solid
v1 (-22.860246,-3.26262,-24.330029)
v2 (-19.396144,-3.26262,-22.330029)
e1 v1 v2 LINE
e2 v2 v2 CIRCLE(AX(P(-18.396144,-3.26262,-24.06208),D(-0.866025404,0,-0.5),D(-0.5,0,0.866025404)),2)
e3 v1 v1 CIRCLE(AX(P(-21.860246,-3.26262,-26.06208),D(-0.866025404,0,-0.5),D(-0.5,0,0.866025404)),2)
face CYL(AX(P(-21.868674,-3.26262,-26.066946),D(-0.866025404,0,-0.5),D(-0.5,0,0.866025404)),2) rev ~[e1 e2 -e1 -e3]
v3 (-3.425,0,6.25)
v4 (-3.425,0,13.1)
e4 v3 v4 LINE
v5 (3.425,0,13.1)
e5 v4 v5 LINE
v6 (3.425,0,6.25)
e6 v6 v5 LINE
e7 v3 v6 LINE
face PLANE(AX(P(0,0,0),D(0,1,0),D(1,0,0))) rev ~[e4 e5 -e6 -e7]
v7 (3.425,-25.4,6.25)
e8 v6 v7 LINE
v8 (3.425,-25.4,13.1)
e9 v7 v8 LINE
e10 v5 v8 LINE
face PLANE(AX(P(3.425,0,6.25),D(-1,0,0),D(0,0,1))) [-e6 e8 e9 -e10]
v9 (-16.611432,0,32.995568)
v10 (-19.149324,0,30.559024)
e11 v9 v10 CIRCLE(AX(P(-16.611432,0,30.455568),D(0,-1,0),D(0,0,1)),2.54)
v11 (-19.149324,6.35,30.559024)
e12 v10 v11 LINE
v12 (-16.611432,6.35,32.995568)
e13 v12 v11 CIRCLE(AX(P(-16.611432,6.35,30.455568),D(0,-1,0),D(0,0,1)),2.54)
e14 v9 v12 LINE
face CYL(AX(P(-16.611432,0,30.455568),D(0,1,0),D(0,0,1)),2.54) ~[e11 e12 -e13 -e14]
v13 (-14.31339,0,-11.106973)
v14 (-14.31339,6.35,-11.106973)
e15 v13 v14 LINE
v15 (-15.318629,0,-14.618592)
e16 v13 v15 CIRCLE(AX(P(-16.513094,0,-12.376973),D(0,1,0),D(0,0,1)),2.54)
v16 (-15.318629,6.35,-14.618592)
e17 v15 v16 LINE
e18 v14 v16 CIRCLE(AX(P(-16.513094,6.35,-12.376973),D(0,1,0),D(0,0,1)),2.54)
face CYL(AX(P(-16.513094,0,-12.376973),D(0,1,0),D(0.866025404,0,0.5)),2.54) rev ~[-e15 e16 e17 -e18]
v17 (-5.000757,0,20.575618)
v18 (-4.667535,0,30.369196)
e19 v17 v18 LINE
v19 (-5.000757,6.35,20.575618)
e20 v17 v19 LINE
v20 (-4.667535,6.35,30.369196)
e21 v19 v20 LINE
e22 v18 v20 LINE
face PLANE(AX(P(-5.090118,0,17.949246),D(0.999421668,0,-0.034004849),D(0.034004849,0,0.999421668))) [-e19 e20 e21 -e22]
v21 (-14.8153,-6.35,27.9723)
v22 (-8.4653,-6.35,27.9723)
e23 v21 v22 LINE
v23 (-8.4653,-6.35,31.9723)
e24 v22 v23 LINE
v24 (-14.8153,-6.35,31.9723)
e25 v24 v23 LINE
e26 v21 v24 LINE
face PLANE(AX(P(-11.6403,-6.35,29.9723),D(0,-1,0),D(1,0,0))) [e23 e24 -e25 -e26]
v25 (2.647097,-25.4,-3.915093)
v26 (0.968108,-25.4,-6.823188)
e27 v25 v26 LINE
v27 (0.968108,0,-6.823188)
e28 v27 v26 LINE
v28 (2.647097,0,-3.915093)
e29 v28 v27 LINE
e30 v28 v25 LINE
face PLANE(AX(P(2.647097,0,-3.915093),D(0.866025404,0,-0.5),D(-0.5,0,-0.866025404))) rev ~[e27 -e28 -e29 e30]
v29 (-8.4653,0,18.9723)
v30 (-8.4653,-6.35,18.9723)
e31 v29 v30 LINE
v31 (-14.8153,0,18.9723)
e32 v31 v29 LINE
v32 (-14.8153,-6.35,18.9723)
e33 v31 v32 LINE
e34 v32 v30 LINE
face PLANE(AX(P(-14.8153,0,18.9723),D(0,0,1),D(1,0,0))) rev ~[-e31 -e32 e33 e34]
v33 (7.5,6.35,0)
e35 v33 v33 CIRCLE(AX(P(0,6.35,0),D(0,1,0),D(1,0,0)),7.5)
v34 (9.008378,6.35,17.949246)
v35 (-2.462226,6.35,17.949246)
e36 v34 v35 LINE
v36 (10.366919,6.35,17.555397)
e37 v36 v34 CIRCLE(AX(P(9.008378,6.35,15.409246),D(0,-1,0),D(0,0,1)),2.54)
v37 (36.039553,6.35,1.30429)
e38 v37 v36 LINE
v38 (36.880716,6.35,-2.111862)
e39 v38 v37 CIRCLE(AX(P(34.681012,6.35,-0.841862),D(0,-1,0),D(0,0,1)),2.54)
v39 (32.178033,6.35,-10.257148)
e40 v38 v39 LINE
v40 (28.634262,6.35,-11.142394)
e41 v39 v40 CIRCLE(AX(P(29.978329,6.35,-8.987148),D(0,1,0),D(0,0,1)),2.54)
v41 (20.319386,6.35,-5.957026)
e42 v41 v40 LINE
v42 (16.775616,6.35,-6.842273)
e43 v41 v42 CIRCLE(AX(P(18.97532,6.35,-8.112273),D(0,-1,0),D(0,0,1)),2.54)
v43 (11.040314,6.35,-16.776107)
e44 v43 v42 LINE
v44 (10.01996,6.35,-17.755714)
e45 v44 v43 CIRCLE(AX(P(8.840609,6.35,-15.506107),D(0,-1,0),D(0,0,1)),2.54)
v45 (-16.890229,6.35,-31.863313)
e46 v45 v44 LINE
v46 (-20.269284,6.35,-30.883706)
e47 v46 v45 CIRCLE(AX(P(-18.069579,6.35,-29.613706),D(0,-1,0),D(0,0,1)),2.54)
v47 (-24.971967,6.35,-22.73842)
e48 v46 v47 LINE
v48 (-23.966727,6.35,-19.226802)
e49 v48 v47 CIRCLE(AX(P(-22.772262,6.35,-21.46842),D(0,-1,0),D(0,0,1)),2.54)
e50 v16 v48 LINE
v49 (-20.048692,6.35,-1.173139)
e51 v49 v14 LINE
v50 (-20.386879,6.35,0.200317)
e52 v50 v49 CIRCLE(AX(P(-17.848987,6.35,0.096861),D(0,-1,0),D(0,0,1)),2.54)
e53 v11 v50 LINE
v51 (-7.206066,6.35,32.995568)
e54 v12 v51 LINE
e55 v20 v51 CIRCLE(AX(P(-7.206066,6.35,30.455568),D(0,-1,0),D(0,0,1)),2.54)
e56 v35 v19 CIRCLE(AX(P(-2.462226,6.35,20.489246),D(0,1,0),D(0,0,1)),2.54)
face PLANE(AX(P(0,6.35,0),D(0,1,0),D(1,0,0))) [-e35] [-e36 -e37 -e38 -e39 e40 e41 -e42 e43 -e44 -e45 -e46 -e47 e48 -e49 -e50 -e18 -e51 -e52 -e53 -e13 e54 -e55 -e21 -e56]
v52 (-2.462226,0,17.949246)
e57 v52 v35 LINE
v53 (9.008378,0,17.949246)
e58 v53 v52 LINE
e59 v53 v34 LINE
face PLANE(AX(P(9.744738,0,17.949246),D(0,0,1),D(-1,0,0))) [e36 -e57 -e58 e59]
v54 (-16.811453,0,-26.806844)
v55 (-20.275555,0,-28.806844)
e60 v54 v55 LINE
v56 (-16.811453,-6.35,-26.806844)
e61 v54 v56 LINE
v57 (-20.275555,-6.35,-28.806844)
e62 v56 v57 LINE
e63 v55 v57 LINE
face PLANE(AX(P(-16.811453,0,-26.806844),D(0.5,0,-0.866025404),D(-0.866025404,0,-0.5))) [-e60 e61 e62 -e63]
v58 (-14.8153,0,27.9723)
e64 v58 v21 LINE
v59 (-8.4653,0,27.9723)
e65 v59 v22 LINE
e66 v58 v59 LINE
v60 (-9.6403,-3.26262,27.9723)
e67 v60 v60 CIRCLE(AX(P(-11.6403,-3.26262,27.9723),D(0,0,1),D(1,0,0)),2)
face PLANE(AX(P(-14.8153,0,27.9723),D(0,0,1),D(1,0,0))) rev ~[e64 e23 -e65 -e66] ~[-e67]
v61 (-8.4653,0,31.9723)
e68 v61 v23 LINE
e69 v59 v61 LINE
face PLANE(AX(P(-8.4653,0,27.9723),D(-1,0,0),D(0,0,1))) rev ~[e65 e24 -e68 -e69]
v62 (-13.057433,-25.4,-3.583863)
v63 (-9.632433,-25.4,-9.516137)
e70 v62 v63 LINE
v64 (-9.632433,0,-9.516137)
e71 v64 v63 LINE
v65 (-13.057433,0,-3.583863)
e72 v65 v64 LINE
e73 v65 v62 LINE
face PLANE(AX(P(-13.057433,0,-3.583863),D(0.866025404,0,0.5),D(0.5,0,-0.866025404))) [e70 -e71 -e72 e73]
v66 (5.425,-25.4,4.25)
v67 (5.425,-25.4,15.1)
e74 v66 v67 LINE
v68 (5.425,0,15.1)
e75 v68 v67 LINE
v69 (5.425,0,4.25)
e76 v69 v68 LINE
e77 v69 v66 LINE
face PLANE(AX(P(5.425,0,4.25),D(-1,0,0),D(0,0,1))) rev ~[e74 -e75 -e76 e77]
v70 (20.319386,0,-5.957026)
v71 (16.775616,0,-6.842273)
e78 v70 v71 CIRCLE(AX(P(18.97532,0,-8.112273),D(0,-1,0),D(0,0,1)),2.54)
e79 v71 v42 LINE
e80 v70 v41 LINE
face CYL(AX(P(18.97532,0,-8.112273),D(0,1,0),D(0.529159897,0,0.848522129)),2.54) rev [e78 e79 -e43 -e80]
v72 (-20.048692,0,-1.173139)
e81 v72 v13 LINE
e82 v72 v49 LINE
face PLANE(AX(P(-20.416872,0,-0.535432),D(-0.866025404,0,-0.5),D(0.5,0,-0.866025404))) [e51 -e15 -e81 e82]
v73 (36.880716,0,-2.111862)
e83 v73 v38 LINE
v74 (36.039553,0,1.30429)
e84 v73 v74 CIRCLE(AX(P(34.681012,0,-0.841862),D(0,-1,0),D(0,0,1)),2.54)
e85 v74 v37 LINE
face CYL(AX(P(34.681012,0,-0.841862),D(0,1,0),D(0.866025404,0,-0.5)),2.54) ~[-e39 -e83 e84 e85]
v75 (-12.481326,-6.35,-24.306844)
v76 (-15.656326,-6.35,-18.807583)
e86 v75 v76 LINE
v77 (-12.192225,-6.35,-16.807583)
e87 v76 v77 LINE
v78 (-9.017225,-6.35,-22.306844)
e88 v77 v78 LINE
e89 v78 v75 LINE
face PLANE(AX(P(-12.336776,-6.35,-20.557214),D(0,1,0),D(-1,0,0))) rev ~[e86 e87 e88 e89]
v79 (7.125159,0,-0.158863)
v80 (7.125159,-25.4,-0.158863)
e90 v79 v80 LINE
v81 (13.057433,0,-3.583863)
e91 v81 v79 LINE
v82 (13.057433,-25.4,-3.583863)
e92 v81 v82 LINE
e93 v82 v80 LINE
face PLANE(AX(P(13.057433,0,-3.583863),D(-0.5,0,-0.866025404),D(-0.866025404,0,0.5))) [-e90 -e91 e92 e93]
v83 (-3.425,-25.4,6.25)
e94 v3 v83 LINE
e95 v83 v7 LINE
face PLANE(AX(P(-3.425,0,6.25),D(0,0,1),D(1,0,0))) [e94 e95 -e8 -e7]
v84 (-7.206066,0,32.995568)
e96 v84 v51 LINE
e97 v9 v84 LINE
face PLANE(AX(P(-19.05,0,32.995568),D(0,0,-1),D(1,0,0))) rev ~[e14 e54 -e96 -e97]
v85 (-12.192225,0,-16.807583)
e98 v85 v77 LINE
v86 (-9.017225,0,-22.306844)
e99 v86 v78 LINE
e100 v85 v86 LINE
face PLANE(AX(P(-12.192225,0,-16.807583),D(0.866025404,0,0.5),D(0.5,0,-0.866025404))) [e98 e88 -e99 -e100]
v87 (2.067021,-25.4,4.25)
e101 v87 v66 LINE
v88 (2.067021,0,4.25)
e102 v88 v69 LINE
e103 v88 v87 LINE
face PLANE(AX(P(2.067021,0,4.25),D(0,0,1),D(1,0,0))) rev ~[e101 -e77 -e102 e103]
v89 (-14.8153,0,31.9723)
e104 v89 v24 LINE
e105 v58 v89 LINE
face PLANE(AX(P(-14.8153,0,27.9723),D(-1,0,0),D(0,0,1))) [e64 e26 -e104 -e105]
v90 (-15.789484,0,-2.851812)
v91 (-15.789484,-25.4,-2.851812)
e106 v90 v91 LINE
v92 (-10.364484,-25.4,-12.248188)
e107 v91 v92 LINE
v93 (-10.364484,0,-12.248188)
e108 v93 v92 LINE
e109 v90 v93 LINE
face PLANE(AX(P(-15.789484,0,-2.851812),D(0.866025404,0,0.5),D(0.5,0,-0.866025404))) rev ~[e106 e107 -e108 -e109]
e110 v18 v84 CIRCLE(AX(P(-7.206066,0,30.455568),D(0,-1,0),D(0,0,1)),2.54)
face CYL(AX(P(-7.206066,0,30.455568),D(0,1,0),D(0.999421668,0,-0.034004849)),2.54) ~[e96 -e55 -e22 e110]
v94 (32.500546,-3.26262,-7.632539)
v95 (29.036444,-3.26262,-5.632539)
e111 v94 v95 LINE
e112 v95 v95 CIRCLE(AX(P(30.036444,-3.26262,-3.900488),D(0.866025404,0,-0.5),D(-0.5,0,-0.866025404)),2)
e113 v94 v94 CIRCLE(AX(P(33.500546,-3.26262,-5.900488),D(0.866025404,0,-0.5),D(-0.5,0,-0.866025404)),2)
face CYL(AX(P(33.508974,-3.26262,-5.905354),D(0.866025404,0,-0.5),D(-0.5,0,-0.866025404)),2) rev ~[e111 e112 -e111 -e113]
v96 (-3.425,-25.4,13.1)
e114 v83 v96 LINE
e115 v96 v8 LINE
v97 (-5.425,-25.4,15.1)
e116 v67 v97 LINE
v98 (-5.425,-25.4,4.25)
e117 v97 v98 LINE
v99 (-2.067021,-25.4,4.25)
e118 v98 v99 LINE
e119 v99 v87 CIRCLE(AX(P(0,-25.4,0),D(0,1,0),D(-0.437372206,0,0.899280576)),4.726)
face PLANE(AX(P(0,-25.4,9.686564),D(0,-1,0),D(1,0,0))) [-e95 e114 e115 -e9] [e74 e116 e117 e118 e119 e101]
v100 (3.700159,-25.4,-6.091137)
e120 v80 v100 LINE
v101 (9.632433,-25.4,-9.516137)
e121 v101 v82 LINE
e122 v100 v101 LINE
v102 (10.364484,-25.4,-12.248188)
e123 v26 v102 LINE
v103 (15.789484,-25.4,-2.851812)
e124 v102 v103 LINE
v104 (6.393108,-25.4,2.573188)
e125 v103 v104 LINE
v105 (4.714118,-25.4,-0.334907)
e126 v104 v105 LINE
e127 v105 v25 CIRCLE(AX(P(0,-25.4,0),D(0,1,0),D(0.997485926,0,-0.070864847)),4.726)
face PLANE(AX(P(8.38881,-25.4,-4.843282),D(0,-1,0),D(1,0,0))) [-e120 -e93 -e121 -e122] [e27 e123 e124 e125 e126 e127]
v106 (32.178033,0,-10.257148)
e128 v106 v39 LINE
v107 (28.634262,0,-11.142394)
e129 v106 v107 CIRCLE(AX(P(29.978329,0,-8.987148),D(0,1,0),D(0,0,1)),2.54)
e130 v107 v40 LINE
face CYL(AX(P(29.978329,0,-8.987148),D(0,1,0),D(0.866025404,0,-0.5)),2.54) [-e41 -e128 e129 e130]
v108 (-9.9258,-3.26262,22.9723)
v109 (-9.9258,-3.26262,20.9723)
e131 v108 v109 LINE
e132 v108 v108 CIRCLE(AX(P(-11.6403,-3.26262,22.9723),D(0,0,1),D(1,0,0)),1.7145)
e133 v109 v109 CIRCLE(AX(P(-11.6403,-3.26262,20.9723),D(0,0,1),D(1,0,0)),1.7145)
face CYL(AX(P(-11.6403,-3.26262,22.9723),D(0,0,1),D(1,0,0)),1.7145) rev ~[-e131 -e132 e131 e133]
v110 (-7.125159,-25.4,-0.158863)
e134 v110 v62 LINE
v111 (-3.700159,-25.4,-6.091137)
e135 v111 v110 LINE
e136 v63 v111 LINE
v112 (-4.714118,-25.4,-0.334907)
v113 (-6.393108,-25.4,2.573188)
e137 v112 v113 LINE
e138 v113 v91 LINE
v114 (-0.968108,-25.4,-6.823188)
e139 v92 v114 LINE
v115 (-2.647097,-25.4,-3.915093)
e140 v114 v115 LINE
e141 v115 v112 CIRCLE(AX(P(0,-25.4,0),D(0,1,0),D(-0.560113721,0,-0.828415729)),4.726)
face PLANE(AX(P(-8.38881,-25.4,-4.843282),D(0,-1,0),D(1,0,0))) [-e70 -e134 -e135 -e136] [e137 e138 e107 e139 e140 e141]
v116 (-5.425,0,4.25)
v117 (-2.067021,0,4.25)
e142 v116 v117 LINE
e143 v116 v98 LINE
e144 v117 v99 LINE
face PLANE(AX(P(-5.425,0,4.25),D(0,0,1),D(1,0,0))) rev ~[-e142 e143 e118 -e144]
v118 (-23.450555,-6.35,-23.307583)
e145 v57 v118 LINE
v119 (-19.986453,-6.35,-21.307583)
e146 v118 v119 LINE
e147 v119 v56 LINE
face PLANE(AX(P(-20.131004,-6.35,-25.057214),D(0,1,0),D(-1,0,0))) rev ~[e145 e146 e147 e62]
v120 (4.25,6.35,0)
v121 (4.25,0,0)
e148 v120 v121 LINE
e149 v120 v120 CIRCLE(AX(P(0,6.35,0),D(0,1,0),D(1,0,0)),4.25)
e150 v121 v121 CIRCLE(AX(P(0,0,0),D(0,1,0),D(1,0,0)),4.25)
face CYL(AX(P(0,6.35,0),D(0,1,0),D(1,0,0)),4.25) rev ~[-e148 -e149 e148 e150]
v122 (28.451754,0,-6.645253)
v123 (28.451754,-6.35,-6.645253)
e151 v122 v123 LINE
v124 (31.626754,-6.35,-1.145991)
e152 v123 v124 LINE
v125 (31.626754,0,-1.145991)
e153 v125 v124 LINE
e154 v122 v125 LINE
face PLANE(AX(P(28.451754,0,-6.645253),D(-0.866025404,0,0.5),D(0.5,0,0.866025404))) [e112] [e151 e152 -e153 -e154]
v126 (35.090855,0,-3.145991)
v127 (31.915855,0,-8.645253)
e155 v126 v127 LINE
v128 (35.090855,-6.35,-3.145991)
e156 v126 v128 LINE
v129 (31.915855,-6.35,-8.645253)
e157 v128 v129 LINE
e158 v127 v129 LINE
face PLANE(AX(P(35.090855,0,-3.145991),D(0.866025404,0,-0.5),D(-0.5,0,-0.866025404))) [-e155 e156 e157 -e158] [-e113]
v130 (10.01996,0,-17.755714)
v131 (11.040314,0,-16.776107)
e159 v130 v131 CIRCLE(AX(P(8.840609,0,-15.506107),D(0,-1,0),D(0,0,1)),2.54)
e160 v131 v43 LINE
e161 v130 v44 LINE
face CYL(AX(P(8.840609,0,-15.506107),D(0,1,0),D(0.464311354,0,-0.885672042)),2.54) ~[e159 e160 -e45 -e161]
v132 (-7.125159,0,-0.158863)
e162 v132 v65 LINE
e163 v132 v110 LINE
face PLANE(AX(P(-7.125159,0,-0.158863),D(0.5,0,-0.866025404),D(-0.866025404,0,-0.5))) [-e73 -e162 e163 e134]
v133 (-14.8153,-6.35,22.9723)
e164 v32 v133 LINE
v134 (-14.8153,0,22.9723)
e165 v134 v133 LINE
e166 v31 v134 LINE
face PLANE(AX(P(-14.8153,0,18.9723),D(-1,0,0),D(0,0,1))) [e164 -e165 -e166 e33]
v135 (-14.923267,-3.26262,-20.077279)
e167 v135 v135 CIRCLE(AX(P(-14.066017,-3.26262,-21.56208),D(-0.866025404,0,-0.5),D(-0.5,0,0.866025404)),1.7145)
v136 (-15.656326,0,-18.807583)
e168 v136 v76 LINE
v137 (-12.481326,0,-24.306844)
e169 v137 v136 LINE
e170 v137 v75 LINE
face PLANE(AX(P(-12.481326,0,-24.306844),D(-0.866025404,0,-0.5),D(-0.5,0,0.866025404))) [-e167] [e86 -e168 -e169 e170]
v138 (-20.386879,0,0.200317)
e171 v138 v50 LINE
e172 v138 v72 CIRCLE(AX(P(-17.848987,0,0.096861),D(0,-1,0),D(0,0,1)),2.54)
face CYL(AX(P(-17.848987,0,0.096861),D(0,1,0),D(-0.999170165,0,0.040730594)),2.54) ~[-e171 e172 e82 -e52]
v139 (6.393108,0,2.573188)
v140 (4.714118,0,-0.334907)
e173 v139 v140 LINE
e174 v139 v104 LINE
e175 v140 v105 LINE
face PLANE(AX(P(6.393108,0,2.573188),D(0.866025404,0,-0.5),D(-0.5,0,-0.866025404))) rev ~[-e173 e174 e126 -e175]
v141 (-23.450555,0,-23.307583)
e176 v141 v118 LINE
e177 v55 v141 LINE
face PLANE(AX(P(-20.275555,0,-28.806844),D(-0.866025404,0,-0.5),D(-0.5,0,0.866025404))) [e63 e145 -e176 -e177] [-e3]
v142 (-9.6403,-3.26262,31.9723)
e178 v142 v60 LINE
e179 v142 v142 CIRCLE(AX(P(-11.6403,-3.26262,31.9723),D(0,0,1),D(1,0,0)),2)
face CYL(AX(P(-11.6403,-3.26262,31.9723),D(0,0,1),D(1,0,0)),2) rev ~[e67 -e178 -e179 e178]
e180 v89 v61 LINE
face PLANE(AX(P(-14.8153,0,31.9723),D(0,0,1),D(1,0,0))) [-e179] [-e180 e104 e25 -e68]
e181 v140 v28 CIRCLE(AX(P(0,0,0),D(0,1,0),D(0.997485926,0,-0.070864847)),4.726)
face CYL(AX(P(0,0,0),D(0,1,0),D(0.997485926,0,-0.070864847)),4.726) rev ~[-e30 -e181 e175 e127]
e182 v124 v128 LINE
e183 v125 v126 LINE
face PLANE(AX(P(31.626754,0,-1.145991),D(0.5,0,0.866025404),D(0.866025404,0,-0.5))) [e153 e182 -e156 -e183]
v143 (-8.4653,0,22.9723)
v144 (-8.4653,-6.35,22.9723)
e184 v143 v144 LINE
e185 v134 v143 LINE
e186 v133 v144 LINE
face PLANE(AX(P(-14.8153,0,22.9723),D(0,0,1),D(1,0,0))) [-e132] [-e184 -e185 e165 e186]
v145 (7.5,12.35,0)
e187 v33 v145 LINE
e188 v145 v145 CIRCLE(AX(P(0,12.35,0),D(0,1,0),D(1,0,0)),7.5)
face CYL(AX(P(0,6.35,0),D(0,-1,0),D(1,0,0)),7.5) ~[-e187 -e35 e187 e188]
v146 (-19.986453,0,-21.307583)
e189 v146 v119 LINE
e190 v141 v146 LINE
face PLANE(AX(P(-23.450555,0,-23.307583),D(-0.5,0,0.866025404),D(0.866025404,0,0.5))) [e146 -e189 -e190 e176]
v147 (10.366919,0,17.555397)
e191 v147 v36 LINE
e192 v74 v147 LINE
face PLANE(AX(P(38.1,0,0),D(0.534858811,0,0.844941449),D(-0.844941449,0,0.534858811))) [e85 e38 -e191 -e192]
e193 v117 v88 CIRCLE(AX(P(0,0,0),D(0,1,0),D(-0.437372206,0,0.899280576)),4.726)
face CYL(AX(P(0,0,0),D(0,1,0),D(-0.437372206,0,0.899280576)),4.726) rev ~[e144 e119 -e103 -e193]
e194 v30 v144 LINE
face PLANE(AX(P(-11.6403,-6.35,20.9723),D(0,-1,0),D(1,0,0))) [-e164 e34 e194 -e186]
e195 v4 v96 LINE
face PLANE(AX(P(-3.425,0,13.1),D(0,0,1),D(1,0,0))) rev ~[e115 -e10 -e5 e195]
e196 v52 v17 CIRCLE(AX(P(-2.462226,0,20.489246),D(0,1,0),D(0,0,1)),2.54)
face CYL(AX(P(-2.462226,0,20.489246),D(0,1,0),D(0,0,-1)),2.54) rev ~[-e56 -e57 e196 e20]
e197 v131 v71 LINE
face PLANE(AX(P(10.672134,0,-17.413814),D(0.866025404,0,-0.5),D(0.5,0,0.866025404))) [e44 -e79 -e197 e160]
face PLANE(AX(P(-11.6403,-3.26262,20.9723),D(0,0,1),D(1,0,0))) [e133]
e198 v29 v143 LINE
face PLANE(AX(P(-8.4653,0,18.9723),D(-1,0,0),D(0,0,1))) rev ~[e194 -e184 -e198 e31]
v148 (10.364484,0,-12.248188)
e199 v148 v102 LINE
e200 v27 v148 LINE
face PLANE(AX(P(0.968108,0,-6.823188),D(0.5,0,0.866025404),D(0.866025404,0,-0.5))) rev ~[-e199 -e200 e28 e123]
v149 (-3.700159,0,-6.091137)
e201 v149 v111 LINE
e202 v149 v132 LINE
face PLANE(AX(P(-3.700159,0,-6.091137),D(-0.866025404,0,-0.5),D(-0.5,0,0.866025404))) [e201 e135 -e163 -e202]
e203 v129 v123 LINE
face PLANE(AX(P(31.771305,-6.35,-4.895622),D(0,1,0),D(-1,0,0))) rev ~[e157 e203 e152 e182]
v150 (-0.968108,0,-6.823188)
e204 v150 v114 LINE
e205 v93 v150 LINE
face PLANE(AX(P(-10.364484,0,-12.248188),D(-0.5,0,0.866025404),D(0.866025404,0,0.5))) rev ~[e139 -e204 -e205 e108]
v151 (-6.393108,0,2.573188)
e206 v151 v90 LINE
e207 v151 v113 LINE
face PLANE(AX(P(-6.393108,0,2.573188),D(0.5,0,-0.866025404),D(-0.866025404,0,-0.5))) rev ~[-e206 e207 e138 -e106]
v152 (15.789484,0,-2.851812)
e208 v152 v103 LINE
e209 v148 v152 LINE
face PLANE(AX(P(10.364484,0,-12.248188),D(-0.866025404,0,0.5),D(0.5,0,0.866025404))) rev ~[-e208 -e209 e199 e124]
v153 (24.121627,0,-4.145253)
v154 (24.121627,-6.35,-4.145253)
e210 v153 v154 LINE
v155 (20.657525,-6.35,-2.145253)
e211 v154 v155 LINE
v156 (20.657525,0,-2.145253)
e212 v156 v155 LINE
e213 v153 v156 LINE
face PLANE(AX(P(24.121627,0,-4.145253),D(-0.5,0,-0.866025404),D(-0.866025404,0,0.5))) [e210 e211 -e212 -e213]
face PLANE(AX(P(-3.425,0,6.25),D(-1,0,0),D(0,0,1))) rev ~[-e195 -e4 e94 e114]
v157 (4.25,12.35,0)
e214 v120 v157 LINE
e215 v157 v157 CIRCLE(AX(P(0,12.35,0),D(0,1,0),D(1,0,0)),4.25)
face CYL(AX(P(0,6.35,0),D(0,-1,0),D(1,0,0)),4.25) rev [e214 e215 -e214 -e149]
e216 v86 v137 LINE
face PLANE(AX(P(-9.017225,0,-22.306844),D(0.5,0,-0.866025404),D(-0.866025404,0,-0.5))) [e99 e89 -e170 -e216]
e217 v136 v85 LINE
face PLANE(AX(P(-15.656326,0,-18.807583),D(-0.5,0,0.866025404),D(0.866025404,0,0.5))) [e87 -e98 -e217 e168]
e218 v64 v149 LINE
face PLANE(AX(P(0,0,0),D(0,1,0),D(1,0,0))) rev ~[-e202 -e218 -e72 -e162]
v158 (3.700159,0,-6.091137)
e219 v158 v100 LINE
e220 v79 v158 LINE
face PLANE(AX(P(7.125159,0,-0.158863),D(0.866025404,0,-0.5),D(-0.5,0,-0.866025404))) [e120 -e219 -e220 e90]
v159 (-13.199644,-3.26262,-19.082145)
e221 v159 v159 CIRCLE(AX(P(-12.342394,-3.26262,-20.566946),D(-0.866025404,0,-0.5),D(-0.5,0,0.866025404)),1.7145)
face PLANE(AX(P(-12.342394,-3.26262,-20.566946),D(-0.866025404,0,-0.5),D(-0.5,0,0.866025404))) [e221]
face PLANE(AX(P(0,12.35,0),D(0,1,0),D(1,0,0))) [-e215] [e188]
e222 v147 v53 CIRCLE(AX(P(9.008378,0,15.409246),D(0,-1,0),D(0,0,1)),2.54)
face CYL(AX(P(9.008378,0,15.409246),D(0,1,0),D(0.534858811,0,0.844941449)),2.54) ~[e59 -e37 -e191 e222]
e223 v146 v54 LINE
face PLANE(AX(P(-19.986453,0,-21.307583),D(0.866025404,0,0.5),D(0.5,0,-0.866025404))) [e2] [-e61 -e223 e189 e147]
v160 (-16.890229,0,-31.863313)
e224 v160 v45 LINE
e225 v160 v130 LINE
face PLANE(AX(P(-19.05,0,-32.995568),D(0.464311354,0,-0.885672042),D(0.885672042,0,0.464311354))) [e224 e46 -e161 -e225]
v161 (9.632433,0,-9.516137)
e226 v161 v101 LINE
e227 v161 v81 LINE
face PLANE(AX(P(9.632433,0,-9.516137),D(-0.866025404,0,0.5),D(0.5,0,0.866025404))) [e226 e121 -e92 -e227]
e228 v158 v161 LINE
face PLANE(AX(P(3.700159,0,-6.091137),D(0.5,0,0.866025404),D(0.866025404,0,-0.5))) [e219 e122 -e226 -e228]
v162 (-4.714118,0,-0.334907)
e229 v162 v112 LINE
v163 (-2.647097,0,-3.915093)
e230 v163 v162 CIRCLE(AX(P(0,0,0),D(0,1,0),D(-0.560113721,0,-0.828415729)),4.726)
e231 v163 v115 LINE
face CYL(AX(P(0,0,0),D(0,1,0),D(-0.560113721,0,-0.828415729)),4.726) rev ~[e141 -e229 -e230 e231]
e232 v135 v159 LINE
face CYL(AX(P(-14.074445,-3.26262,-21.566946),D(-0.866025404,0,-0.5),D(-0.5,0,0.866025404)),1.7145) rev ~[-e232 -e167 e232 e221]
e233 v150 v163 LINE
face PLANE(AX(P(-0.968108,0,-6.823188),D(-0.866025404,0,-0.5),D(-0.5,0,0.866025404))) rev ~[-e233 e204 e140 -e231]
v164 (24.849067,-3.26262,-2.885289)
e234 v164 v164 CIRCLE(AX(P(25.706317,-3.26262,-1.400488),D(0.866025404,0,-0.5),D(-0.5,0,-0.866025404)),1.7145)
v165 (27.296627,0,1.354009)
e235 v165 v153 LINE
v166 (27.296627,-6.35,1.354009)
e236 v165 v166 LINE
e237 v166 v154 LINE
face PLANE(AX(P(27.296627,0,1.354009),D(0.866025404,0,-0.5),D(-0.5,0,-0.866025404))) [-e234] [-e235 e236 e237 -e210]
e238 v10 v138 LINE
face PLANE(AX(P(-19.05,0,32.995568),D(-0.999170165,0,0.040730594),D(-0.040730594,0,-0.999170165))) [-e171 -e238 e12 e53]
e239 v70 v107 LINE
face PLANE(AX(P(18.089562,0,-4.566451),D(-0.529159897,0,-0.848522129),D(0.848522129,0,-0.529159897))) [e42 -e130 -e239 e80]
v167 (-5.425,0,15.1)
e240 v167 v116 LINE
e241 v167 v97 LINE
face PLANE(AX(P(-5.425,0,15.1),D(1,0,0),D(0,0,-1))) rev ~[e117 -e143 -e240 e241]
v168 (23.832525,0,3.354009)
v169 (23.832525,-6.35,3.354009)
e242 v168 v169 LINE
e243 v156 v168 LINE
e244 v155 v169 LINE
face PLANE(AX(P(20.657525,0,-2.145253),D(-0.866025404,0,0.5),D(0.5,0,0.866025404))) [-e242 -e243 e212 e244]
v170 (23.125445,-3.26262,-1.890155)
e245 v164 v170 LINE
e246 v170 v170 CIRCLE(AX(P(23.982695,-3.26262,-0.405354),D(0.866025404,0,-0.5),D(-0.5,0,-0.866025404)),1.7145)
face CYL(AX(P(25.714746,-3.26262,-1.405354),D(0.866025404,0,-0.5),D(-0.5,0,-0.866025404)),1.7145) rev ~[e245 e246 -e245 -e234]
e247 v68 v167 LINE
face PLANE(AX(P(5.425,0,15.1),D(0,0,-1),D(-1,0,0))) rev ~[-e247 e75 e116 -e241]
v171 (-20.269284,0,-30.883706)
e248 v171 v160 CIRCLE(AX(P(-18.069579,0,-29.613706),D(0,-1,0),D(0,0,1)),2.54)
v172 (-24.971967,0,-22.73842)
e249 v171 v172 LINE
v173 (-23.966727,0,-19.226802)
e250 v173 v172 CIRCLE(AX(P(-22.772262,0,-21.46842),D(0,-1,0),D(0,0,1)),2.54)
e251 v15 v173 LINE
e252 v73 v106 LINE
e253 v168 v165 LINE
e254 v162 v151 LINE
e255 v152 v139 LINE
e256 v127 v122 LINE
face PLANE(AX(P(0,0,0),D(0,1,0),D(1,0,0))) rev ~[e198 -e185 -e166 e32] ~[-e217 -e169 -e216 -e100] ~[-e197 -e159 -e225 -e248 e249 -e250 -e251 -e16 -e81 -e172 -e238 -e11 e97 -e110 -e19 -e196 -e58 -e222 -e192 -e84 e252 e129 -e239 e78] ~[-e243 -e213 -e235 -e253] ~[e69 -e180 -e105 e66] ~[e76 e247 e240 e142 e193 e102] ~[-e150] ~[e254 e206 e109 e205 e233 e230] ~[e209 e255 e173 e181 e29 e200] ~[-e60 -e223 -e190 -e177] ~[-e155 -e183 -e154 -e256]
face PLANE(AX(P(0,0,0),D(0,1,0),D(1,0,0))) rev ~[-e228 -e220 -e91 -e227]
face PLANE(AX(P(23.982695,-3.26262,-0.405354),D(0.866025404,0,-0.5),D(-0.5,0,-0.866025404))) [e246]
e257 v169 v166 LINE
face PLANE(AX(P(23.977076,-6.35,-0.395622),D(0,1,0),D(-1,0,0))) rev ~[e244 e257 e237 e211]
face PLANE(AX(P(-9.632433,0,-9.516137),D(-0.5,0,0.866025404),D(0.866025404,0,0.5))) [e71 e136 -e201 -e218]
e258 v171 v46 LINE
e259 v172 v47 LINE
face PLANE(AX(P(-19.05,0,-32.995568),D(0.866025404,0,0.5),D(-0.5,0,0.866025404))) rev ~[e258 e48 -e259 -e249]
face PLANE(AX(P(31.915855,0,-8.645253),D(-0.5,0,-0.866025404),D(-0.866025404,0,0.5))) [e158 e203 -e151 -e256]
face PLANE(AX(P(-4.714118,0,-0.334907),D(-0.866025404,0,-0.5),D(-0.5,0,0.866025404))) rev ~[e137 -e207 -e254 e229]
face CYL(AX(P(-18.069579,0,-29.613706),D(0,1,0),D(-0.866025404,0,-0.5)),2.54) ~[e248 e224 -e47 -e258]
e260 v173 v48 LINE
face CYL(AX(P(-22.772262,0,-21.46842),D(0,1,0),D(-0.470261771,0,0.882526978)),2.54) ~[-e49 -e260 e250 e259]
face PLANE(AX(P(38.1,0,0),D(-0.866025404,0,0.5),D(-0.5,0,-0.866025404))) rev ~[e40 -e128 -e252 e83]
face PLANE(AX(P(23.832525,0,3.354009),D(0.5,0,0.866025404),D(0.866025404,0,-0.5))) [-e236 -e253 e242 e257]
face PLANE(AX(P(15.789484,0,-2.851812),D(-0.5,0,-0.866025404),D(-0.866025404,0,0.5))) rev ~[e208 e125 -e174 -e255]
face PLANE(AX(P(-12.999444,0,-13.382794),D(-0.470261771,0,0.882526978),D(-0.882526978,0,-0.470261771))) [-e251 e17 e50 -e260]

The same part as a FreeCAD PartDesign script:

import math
import FreeCAD as App
import Part
import Sketcher

V = App.Vector
Q = App.Units.Quantity


def edges_at(feature, points):
    """Names of the edges that pass closest to the given points."""
    edges = feature.Shape.Edges
    near = lambda p: min(range(len(edges)), key=lambda i: edges[i].distToShape(Part.Vertex(*p))[0])
    return sorted({f"Edge{near(p) + 1}" for p in points})

doc = App.newDocument("Part")
params = doc.addObject("Spreadsheet::Sheet", "Params")
for row, (alias, value) in enumerate([
    ("sketch1_width", "38.1 mm"),
    ("sketch1_length", "38.1 mm"),
    ("pad1_length", "6.35 mm"),
    ("sketch2_diameter", "8.5 mm"),
    ("sketch3_width", "10.85 mm"),
    ("sketch3_length", "10.85 mm"),
    ("sketch3_length2", "6.85 mm"),
    ("pad2_length", "25.4 mm"),
    ("sketch4_height", "4 mm"),
    ("sketch4_length", "4 mm"),
    ("sketch4_width", "6.35 mm"),
    ("sketch4_length2", "6.35 mm"),
    ("pad3_length", "6.35 mm"),
    ("sketch5_diameter", "4 mm"),
    ("pocket2_length", "6.54 mm"),
    ("pocket3_length", "2 mm"),
    ("sketch7_width", "38.1 mm"),
    ("sketch7_length", "38.1 mm"),
    ("pocket4_length", "6.35 mm"),
    ("fillet_radius", "2.54 mm"),
    ("sketch8_diameter", "15 mm"),
    ("sketch8_diameter2", "8.5 mm"),
    ("pad4_length", "6 mm"),
], start=1):
    params.set(f"A{row}", alias)
    params.set(f"B{row}", "=" + value)
    params.setAlias(f"B{row}", alias)

body = doc.addObject("PartDesign::Body", "Body")

sketch1 = body.newObject("Sketcher::SketchObject", "Sketch")
sketch1.AttachmentSupport = (doc.getObject("XZ_Plane"), [""])
sketch1.MapMode = "FlatFace"
sketch1.addGeometry([
    Part.LineSegment(V(19, 33, 0), V(38, 0, 0)),
    Part.LineSegment(V(38, 0, 0), V(19, -33, 0)),
    Part.LineSegment(V(19, -33, 0), V(-19, -33, 0)),
    Part.LineSegment(V(-19, -33, 0), V(-38, 0, 0)),
    Part.LineSegment(V(-38, 0, 0), V(-19, 33, 0)),
    Part.LineSegment(V(-19, 33, 0), V(19, 33, 0)),
], False)
sketch1.addConstraint([
    Sketcher.Constraint("Coincident", 0, 2, 1, 1),
    Sketcher.Constraint("Coincident", 1, 2, 2, 1),
    Sketcher.Constraint("Coincident", 2, 2, 3, 1),
    Sketcher.Constraint("Coincident", 3, 2, 4, 1),
    Sketcher.Constraint("Coincident", 4, 2, 5, 1),
    Sketcher.Constraint("Coincident", 5, 2, 0, 1),
    Sketcher.Constraint("Horizontal", 2),
    Sketcher.Constraint("Horizontal", 5),
    Sketcher.Constraint("Symmetric", 0, 2, 3, 2, -1, 1),
    Sketcher.Constraint("Symmetric", 1, 2, 4, 2, -1, 1),
    Sketcher.Constraint("PointOnObject", 0, 2, -1),
    Sketcher.Constraint("Parallel", 0, 3),
    Sketcher.Constraint("Vertical", 2, 2, 4, 2),
    Sketcher.Constraint("Angle", 0, Q("-60 deg")),
    Sketcher.Constraint("DistanceX", 2, 2, 2, 1, Q("38.1 mm")),
    Sketcher.Constraint("Distance", 0, Q("38.1 mm")),
])
sketch1.setExpression("Constraints[14]", "Params.sketch1_width")
sketch1.setExpression("Constraints[15]", "Params.sketch1_length")
pad1 = body.newObject("PartDesign::Pad", "Pad")
pad1.Profile = sketch1
pad1.setExpression("Length", "Params.pad1_length")
pad1.Reversed = True

sketch2 = body.newObject("Sketcher::SketchObject", "Sketch001")
sketch2.AttachmentSupport = (doc.getObject("XZ_Plane"), [""])
sketch2.MapMode = "FlatFace"
sketch2.AttachmentOffset = App.Placement(V(0, 0, -6.35), App.Rotation())
sketch2.addGeometry(Part.Circle(V(0, 0, 0), V(0, 0, 1), 4.3), False)
sketch2.addConstraint([
    Sketcher.Constraint("Coincident", 0, 3, -1, 1),
    Sketcher.Constraint("Diameter", 0, Q("8.5 mm")),
])
sketch2.setExpression("Constraints[1]", "Params.sketch2_diameter")
pocket1 = body.newObject("PartDesign::Pocket", "Pocket")
pocket1.Profile = sketch2
pocket1.Type = "ThroughAll"
pocket1.Reversed = True

sketch3 = body.newObject("Sketcher::SketchObject", "Sketch002")
sketch3.AttachmentSupport = (doc.getObject("XZ_Plane"), [""])
sketch3.MapMode = "FlatFace"
sketch3.addGeometry([
    Part.LineSegment(V(-5.4, 15.1, 0), V(-5.4, 4.2, 0)),
    Part.LineSegment(V(-5.4, 4.2, 0), V(-2.1, 4.2, 0)),
    Part.ArcOfCircle(Part.Circle(V(0, 0, 0), V(0, 0, 1), 4.7), math.radians(64), math.radians(116)),
    Part.LineSegment(V(2.1, 4.2, 0), V(5.4, 4.2, 0)),
    Part.LineSegment(V(5.4, 4.2, 0), V(5.4, 15.1, 0)),
    Part.LineSegment(V(5.4, 15.1, 0), V(-5.4, 15.1, 0)),
    Part.LineSegment(V(3.4, 6.2, 0), V(-3.4, 6.2, 0)),
    Part.LineSegment(V(-3.4, 6.2, 0), V(-3.4, 13.1, 0)),
    Part.LineSegment(V(-3.4, 13.1, 0), V(3.4, 13.1, 0)),
    Part.LineSegment(V(3.4, 13.1, 0), V(3.4, 6.2, 0)),
    Part.LineSegment(V(2.6, -3.9, 0), V(1, -6.8, 0)),
    Part.LineSegment(V(1, -6.8, 0), V(10.4, -12.2, 0)),
    Part.LineSegment(V(10.4, -12.2, 0), V(15.8, -2.9, 0)),
    Part.LineSegment(V(15.8, -2.9, 0), V(6.4, 2.6, 0)),
    Part.LineSegment(V(6.4, 2.6, 0), V(4.7, -0.3, 0)),
    Part.ArcOfCircle(Part.Circle(V(0, 0, 0), V(0, 0, 1), 4.7), math.radians(-56), math.radians(-4)),
    Part.LineSegment(V(7.1, -0.2, 0), V(13.1, -3.6, 0)),
    Part.LineSegment(V(13.1, -3.6, 0), V(9.6, -9.5, 0)),
    Part.LineSegment(V(9.6, -9.5, 0), V(3.7, -6.1, 0)),
    Part.LineSegment(V(3.7, -6.1, 0), V(7.1, -0.2, 0)),
    Part.LineSegment(V(-4.7, -0.3, 0), V(-6.4, 2.6, 0)),
    Part.LineSegment(V(-6.4, 2.6, 0), V(-15.8, -2.9, 0)),
    Part.LineSegment(V(-15.8, -2.9, 0), V(-10.4, -12.2, 0)),
    Part.LineSegment(V(-10.4, -12.2, 0), V(-1, -6.8, 0)),
    Part.LineSegment(V(-1, -6.8, 0), V(-2.6, -3.9, 0)),
    Part.ArcOfCircle(Part.Circle(V(0, 0, 0), V(0, 0, 1), 4.7), math.radians(-176), math.radians(-124)),
    Part.LineSegment(V(-3.7, -6.1, 0), V(-9.6, -9.5, 0)),
    Part.LineSegment(V(-9.6, -9.5, 0), V(-13.1, -3.6, 0)),
    Part.LineSegment(V(-13.1, -3.6, 0), V(-7.1, -0.2, 0)),
    Part.LineSegment(V(-7.1, -0.2, 0), V(-3.7, -6.1, 0)),
], False)
sketch3.addConstraint([
    Sketcher.Constraint("Coincident", 0, 2, 1, 1),
    Sketcher.Constraint("Coincident", 1, 2, 2, 2),
    Sketcher.Constraint("Coincident", 2, 1, 3, 1),
    Sketcher.Constraint("Coincident", 3, 2, 4, 1),
    Sketcher.Constraint("Coincident", 4, 2, 5, 1),
    Sketcher.Constraint("Coincident", 5, 2, 0, 1),
    Sketcher.Constraint("Coincident", 6, 2, 7, 1),
    Sketcher.Constraint("Coincident", 7, 2, 8, 1),
    Sketcher.Constraint("Coincident", 8, 2, 9, 1),
    Sketcher.Constraint("Coincident", 9, 2, 6, 1),
    Sketcher.Constraint("Coincident", 10, 2, 11, 1),
    Sketcher.Constraint("Coincident", 11, 2, 12, 1),
    Sketcher.Constraint("Coincident", 12, 2, 13, 1),
    Sketcher.Constraint("Coincident", 13, 2, 14, 1),
    Sketcher.Constraint("Coincident", 14, 2, 15, 2),
    Sketcher.Constraint("Coincident", 15, 1, 10, 1),
    Sketcher.Constraint("Coincident", 16, 2, 17, 1),
    Sketcher.Constraint("Coincident", 17, 2, 18, 1),
    Sketcher.Constraint("Coincident", 18, 2, 19, 1),
    Sketcher.Constraint("Coincident", 19, 2, 16, 1),
    Sketcher.Constraint("Coincident", 20, 2, 21, 1),
    Sketcher.Constraint("Coincident", 21, 2, 22, 1),
    Sketcher.Constraint("Coincident", 22, 2, 23, 1),
    Sketcher.Constraint("Coincident", 23, 2, 24, 1),
    Sketcher.Constraint("Coincident", 24, 2, 25, 2),
    Sketcher.Constraint("Coincident", 25, 1, 20, 1),
    Sketcher.Constraint("Coincident", 26, 2, 27, 1),
    Sketcher.Constraint("Coincident", 27, 2, 28, 1),
    Sketcher.Constraint("Coincident", 28, 2, 29, 1),
    Sketcher.Constraint("Coincident", 29, 2, 26, 1),
    Sketcher.Constraint("Vertical", 0),
    Sketcher.Constraint("Horizontal", 1),
    Sketcher.Constraint("Horizontal", 3),
    Sketcher.Constraint("Vertical", 4),
    Sketcher.Constraint("Horizontal", 5),
    Sketcher.Constraint("Horizontal", 6),
    Sketcher.Constraint("Vertical", 7),
    Sketcher.Constraint("Horizontal", 8),
    Sketcher.Constraint("Vertical", 9),
    Sketcher.Constraint("Coincident", 2, 3, -1, 1),
    Sketcher.Constraint("Coincident", 15, 3, -1, 1),
    Sketcher.Constraint("Coincident", 25, 3, -1, 1),
    Sketcher.Constraint("Equal", 2, 15),
    Sketcher.Constraint("Equal", 15, 25),
    Sketcher.Constraint("Symmetric", 0, 2, 3, 2, -2),
    Sketcher.Constraint("Symmetric", 13, 2, 20, 2, -2),
    Sketcher.Constraint("Symmetric", 12, 2, 21, 2, -2),
    Sketcher.Constraint("Symmetric", 11, 2, 22, 2, -2),
    Sketcher.Constraint("Symmetric", 10, 2, 23, 2, -2),
    Sketcher.Constraint("Symmetric", 17, 2, 26, 2, -2),
    Sketcher.Constraint("Symmetric", 16, 2, 27, 2, -2),
    Sketcher.Constraint("Symmetric", 19, 2, 28, 2, -2),
    Sketcher.Constraint("Symmetric", 18, 2, 29, 2, -2),
    Sketcher.Constraint("Perpendicular", 10, 11),
    Sketcher.Constraint("Perpendicular", 11, 12),
    Sketcher.Constraint("Perpendicular", 12, 13),
    Sketcher.Constraint("Perpendicular", 13, 14),
    Sketcher.Constraint("Perpendicular", 14, 16),
    Sketcher.Constraint("Perpendicular", 16, 17),
    Sketcher.Constraint("Perpendicular", 17, 18),
    Sketcher.Constraint("Perpendicular", 18, 19),
    Sketcher.Constraint("Perpendicular", 20, 21),
    Sketcher.Constraint("Perpendicular", 23, 24),
    Sketcher.Constraint("Equal", 5, 0),
    Sketcher.Constraint("Equal", 8, 7),
    Sketcher.Constraint("Equal", 11, 12),
    Sketcher.Constraint("Equal", 12, 13),
    Sketcher.Constraint("Equal", 10, 14),
    Sketcher.Constraint("Equal", 16, 17),
    Sketcher.Constraint("Angle", 10, Q("-120 deg")),
    Sketcher.Constraint("Radius", 2, Q("4.726 mm")),
    Sketcher.Constraint("DistanceY", 1, 2, 6, 2, Q("2 mm")),
    Sketcher.Constraint("DistanceX", 0, 2, 6, 2, Q("2 mm")),
    Sketcher.Constraint("DistanceY", 7, 2, 5, 2, Q("2 mm")),
    Sketcher.Constraint("DistanceX", 5, 2, 5, 1, Q("10.85 mm")),
    Sketcher.Constraint("DistanceY", -1, 1, 4, 2, Q("15.1 mm")),
    Sketcher.Constraint("Distance", 11, Q("10.85 mm")),
    Sketcher.Constraint("Distance", 16, Q("6.85 mm")),
    Sketcher.Constraint("Distance", 10, Q("3.357979 mm")),
    Sketcher.Constraint("DistanceX", -1, 1, 18, 2, Q("3.700159 mm")),
    Sketcher.Constraint("DistanceY", 16, 2, 12, 2, Q("0.732051 mm")),
])
sketch3.setExpression("Constraints[74]", "Params.sketch3_width")
sketch3.setExpression("Constraints[76]", "Params.sketch3_length")
sketch3.setExpression("Constraints[77]", "Params.sketch3_length2")
pad2 = body.newObject("PartDesign::Pad", "Pad001")
pad2.Profile = sketch3
pad2.setExpression("Length", "Params.pad2_length")

sketch4 = body.newObject("Sketcher::SketchObject", "Sketch003")
sketch4.AttachmentSupport = (doc.getObject("XZ_Plane"), [""])
sketch4.MapMode = "FlatFace"
sketch4.addGeometry([
    Part.LineSegment(V(-14.8, 23, 0), V(-14.8, 19, 0)),
    Part.LineSegment(V(-14.8, 19, 0), V(-8.5, 19, 0)),
    Part.LineSegment(V(-8.5, 19, 0), V(-8.5, 23, 0)),
    Part.LineSegment(V(-8.5, 23, 0), V(-14.8, 23, 0)),
    Part.LineSegment(V(-14.8, 32, 0), V(-14.8, 28, 0)),
    Part.LineSegment(V(-14.8, 28, 0), V(-8.5, 28, 0)),
    Part.LineSegment(V(-8.5, 28, 0), V(-8.5, 32, 0)),
    Part.LineSegment(V(-8.5, 32, 0), V(-14.8, 32, 0)),
    Part.LineSegment(V(24.1, -4.1, 0), V(27.3, 1.4, 0)),
    Part.LineSegment(V(27.3, 1.4, 0), V(23.8, 3.4, 0)),
    Part.LineSegment(V(23.8, 3.4, 0), V(20.7, -2.1, 0)),
    Part.LineSegment(V(20.7, -2.1, 0), V(24.1, -4.1, 0)),
    Part.LineSegment(V(35.1, -3.1, 0), V(31.6, -1.1, 0)),
    Part.LineSegment(V(31.6, -1.1, 0), V(28.5, -6.6, 0)),
    Part.LineSegment(V(28.5, -6.6, 0), V(31.9, -8.6, 0)),
    Part.LineSegment(V(31.9, -8.6, 0), V(35.1, -3.1, 0)),
    Part.LineSegment(V(-15.7, -18.8, 0), V(-12.5, -24.3, 0)),
    Part.LineSegment(V(-12.5, -24.3, 0), V(-9, -22.3, 0)),
    Part.LineSegment(V(-9, -22.3, 0), V(-12.2, -16.8, 0)),
    Part.LineSegment(V(-12.2, -16.8, 0), V(-15.7, -18.8, 0)),
    Part.LineSegment(V(-20.3, -28.8, 0), V(-16.8, -26.8, 0)),
    Part.LineSegment(V(-16.8, -26.8, 0), V(-20, -21.3, 0)),
    Part.LineSegment(V(-20, -21.3, 0), V(-23.5, -23.3, 0)),
    Part.LineSegment(V(-23.5, -23.3, 0), V(-20.3, -28.8, 0)),
], False)
sketch4.addConstraint([
    Sketcher.Constraint("Coincident", 0, 2, 1, 1),
    Sketcher.Constraint("Coincident", 1, 2, 2, 1),
    Sketcher.Constraint("Coincident", 2, 2, 3, 1),
    Sketcher.Constraint("Coincident", 3, 2, 0, 1),
    Sketcher.Constraint("Coincident", 4, 2, 5, 1),
    Sketcher.Constraint("Coincident", 5, 2, 6, 1),
    Sketcher.Constraint("Coincident", 6, 2, 7, 1),
    Sketcher.Constraint("Coincident", 7, 2, 4, 1),
    Sketcher.Constraint("Coincident", 8, 2, 9, 1),
    Sketcher.Constraint("Coincident", 9, 2, 10, 1),
    Sketcher.Constraint("Coincident", 10, 2, 11, 1),
    Sketcher.Constraint("Coincident", 11, 2, 8, 1),
    Sketcher.Constraint("Coincident", 12, 2, 13, 1),
    Sketcher.Constraint("Coincident", 13, 2, 14, 1),
    Sketcher.Constraint("Coincident", 14, 2, 15, 1),
    Sketcher.Constraint("Coincident", 15, 2, 12, 1),
    Sketcher.Constraint("Coincident", 16, 2, 17, 1),
    Sketcher.Constraint("Coincident", 17, 2, 18, 1),
    Sketcher.Constraint("Coincident", 18, 2, 19, 1),
    Sketcher.Constraint("Coincident", 19, 2, 16, 1),
    Sketcher.Constraint("Coincident", 20, 2, 21, 1),
    Sketcher.Constraint("Coincident", 21, 2, 22, 1),
    Sketcher.Constraint("Coincident", 22, 2, 23, 1),
    Sketcher.Constraint("Coincident", 23, 2, 20, 1),
    Sketcher.Constraint("Vertical", 0),
    Sketcher.Constraint("Horizontal", 1),
    Sketcher.Constraint("Vertical", 2),
    Sketcher.Constraint("Horizontal", 3),
    Sketcher.Constraint("Vertical", 4),
    Sketcher.Constraint("Horizontal", 5),
    Sketcher.Constraint("Vertical", 6),
    Sketcher.Constraint("Horizontal", 7),
    Sketcher.Constraint("Perpendicular", 8, 9),
    Sketcher.Constraint("Perpendicular", 9, 10),
    Sketcher.Constraint("Perpendicular", 10, 11),
    Sketcher.Constraint("Parallel", 11, 12),
    Sketcher.Constraint("Perpendicular", 12, 13),
    Sketcher.Constraint("Perpendicular", 13, 14),
    Sketcher.Constraint("Perpendicular", 14, 15),
    Sketcher.Constraint("Perpendicular", 16, 17),
    Sketcher.Constraint("Perpendicular", 17, 18),
    Sketcher.Constraint("Perpendicular", 18, 19),
    Sketcher.Constraint("Parallel", 19, 20),
    Sketcher.Constraint("Perpendicular", 20, 21),
    Sketcher.Constraint("Perpendicular", 21, 22),
    Sketcher.Constraint("Perpendicular", 22, 23),
    Sketcher.Constraint("Vertical", 3, 2, 4, 2),
    Sketcher.Constraint("Vertical", 2, 2, 5, 2),
    Sketcher.Constraint("Equal", 2, 4),
    Sketcher.Constraint("Equal", 11, 12),
    Sketcher.Constraint("Equal", 10, 13),
    Sketcher.Constraint("Equal", 15, 16),
    Sketcher.Constraint("Equal", 14, 17),
    Sketcher.Constraint("Equal", 19, 20),
    Sketcher.Constraint("Equal", 18, 21),
    Sketcher.Constraint("DistanceY", 0, 2, 0, 1, Q("4 mm")),
    Sketcher.Constraint("Angle", 8, Q("60 deg")),
    Sketcher.Constraint("Angle", 16, Q("-60 deg")),
    Sketcher.Constraint("Distance", 9, Q("4 mm")),
    Sketcher.Constraint("DistanceY", 3, 2, 4, 2, Q("5 mm")),
    Sketcher.Constraint("DistanceX", 1, 1, 1, 2, Q("6.35 mm")),
    Sketcher.Constraint("DistanceY", 12, 2, 8, 2, Q("2.5 mm")),
    Sketcher.Constraint("DistanceY", 20, 2, 16, 2, Q("2.5 mm")),
    Sketcher.Constraint("Distance", 8, Q("6.35 mm")),
    Sketcher.Constraint("DistanceX", 0, 2, -1, 1, Q("14.8153 mm")),
    Sketcher.Constraint("DistanceY", -1, 1, 0, 2, Q("18.9723 mm")),
    Sketcher.Constraint("DistanceY", -1, 1, 8, 2, Q("1.354009 mm")),
    Sketcher.Constraint("DistanceX", 9, 2, 12, 2, Q("7.794229 mm")),
    Sketcher.Constraint("DistanceX", 16, 2, 10, 2, Q("33.138852 mm")),
    Sketcher.Constraint("DistanceY", 16, 2, 10, 2, Q("22.161592 mm")),
    Sketcher.Constraint("DistanceX", 20, 2, 17, 2, Q("7.794229 mm")),
    Sketcher.Constraint("DistanceX", -1, 1, 8, 2, Q("27.296627 mm")),
])
sketch4.setExpression("Constraints[55]", "Params.sketch4_height")
sketch4.setExpression("Constraints[58]", "Params.sketch4_length")
sketch4.setExpression("Constraints[60]", "Params.sketch4_width")
sketch4.setExpression("Constraints[63]", "Params.sketch4_length2")
pad3 = body.newObject("PartDesign::Pad", "Pad002")
pad3.Profile = sketch4
pad3.setExpression("Length", "Params.pad3_length")

sketch5 = body.newObject("Sketcher::SketchObject", "Sketch004")
sketch5.AttachmentSupport = (doc.getObject("XY_Plane"), [""])
sketch5.MapMode = "FlatFace"
sketch5.AttachmentOffset = App.Placement(V(0, 0, 31.9723), App.Rotation())
sketch5.addGeometry(Part.Circle(V(-11.6, -3.3, 0), V(0, 0, 1), 2), False)
sketch5.addConstraint([
    Sketcher.Constraint("Diameter", 0, Q("4 mm")),
    Sketcher.Constraint("DistanceX", 0, 3, -1, 1, Q("11.6403 mm")),
    Sketcher.Constraint("DistanceY", 0, 3, -1, 1, Q("3.26262 mm")),
])
sketch5.setExpression("Constraints[0]", "Params.sketch5_diameter")
pocket2 = body.newObject("PartDesign::Pocket", "Pocket001")
pocket2.Profile = sketch5
pocket2.setExpression("Length", "Params.pocket2_length")
doc.recompute()

polarpattern = body.newObject("PartDesign::PolarPattern", "PolarPattern")
polarpattern.Originals = [pocket2]
polarpattern.Axis = (doc.getObject("Y_Axis"), [""])
polarpattern.Angle = 360
polarpattern.Occurrences = 3
body.Tip = polarpattern

sketch6 = body.newObject("Sketcher::SketchObject", "Sketch005")
sketch6.AttachmentSupport = (doc.getObject("XY_Plane"), [""])
sketch6.MapMode = "FlatFace"
sketch6.AttachmentOffset = App.Placement(V(0, 0, 22.9723), App.Rotation())
sketch6.addGeometry(Part.Circle(V(-11.6, -3.3, 0), V(0, 0, 1), 1.7), False)
sketch6.addConstraint([
    Sketcher.Constraint("Diameter", 0, Q("3.429 mm")),
    Sketcher.Constraint("DistanceX", 0, 3, -1, 1, Q("11.6403 mm")),
    Sketcher.Constraint("DistanceY", 0, 3, -1, 1, Q("3.26262 mm")),
])
pocket3 = body.newObject("PartDesign::Pocket", "Pocket002")
pocket3.Profile = sketch6
pocket3.setExpression("Length", "Params.pocket3_length")
doc.recompute()

polarpattern2 = body.newObject("PartDesign::PolarPattern", "PolarPattern001")
polarpattern2.Originals = [pocket3]
polarpattern2.Axis = (doc.getObject("Y_Axis"), [""])
polarpattern2.Angle = 360
polarpattern2.Occurrences = 3
body.Tip = polarpattern2

sketch7 = body.newObject("Sketcher::SketchObject", "Sketch006")
sketch7.AttachmentSupport = (doc.getObject("XZ_Plane"), [""])
sketch7.MapMode = "FlatFace"
sketch7.addGeometry([
    Part.LineSegment(V(-19, 33, 0), V(-38, 0, 0)),
    Part.LineSegment(V(-38, 0, 0), V(-26, -20, 0)),
    Part.LineSegment(V(-26, -20, 0), V(-13, -13, 0)),
    Part.LineSegment(V(-13, -13, 0), V(-20, -1, 0)),
    Part.LineSegment(V(-20, -1, 0), V(-19, 33, 0)),
    Part.LineSegment(V(38, 0, 0), V(19, 33, 0)),
    Part.LineSegment(V(19, 33, 0), V(-5, 33, 0)),
    Part.LineSegment(V(-5, 33, 0), V(-5, 18, 0)),
    Part.LineSegment(V(-5, 18, 0), V(10, 18, 0)),
    Part.LineSegment(V(10, 18, 0), V(38, 0, 0)),
    Part.LineSegment(V(-19, -33, 0), V(19, -33, 0)),
    Part.LineSegment(V(19, -33, 0), V(31, -13, 0)),
    Part.LineSegment(V(31, -13, 0), V(18, -5, 0)),
    Part.LineSegment(V(18, -5, 0), V(11, -17, 0)),
    Part.LineSegment(V(11, -17, 0), V(-19, -33, 0)),
], False)
sketch7.addConstraint([
    Sketcher.Constraint("Coincident", 0, 2, 1, 1),
    Sketcher.Constraint("Coincident", 1, 2, 2, 1),
    Sketcher.Constraint("Coincident", 2, 2, 3, 1),
    Sketcher.Constraint("Coincident", 3, 2, 4, 1),
    Sketcher.Constraint("Coincident", 4, 2, 0, 1),
    Sketcher.Constraint("Coincident", 5, 2, 6, 1),
    Sketcher.Constraint("Coincident", 6, 2, 7, 1),
    Sketcher.Constraint("Coincident", 7, 2, 8, 1),
    Sketcher.Constraint("Coincident", 8, 2, 9, 1),
    Sketcher.Constraint("Coincident", 9, 2, 5, 1),
    Sketcher.Constraint("Coincident", 10, 2, 11, 1),
    Sketcher.Constraint("Coincident", 11, 2, 12, 1),
    Sketcher.Constraint("Coincident", 12, 2, 13, 1),
    Sketcher.Constraint("Coincident", 13, 2, 14, 1),
    Sketcher.Constraint("Coincident", 14, 2, 10, 1),
    Sketcher.Constraint("Horizontal", 6),
    Sketcher.Constraint("Horizontal", 8),
    Sketcher.Constraint("Horizontal", 10),
    Sketcher.Constraint("Symmetric", 0, 2, 9, 2, -1, 1),
    Sketcher.Constraint("Symmetric", 4, 2, 10, 2, -1, 1),
    Sketcher.Constraint("Symmetric", 5, 2, 14, 2, -1, 1),
    Sketcher.Constraint("PointOnObject", 0, 2, -1),
    Sketcher.Constraint("Parallel", 1, 3),
    Sketcher.Constraint("Parallel", 3, 5),
    Sketcher.Constraint("Parallel", 0, 11),
    Sketcher.Constraint("Parallel", 11, 13),
    Sketcher.Constraint("Vertical", 5, 2, 10, 2),
    Sketcher.Constraint("Equal", 2, 7),
    Sketcher.Constraint("Equal", 4, 9),
    Sketcher.Constraint("Equal", 1, 11),
    Sketcher.Constraint("Equal", 7, 12),
    Sketcher.Constraint("Equal", 3, 13),
    Sketcher.Constraint("Equal", 9, 14),
    Sketcher.Constraint("Angle", 0, Q("-120 deg")),
    Sketcher.Constraint("DistanceX", 10, 1, 10, 2, Q("38.1 mm")),
    Sketcher.Constraint("Distance", 0, Q("38.1 mm")),
    Sketcher.Constraint("DistanceY", 3, 2, 4, 2, Q("33.531 mm")),
    Sketcher.Constraint("DistanceY", 1, 2, -1, 1, Q("20.462599 mm")),
    Sketcher.Constraint("Distance", 2, Q("15.055029 mm")),
    Sketcher.Constraint("DistanceX", 6, 2, 6, 1, Q("23.628174 mm")),
    Sketcher.Constraint("DistanceX", 8, 1, 8, 2, Q("14.834856 mm")),
    Sketcher.Constraint("DistanceX", 3, 2, -1, 1, Q("20.416872 mm")),
])
sketch7.setExpression("Constraints[34]", "Params.sketch7_width")
sketch7.setExpression("Constraints[35]", "Params.sketch7_length")
pocket4 = body.newObject("PartDesign::Pocket", "Pocket003")
pocket4.Profile = sketch7
pocket4.setExpression("Length", "Params.pocket4_length")
doc.recompute()

fillet = body.newObject("PartDesign::Fillet", "Fillet")
fillet.Base = (pocket4, edges_at(pocket4, [
    (38.1, 3.175, 0),
    (-19.05, 3.175, 32.996),
    (-19.05, 3.175, -32.996),
    (18.09, 3.175, -4.566),
    (10.672, 3.175, -17.414),
    (30.864, 3.175, -12.533),
    (-5.09, 3.175, 17.949),
    (9.745, 3.175, 17.949),
    (-4.578, 3.175, 32.996),
    (-12.999, 3.175, -13.383),
    (-20.417, 3.175, -0.535),
    (-26.286, 3.175, -20.463),
]))
fillet.setExpression("Radius", "Params.fillet_radius")

sketch8 = body.newObject("Sketcher::SketchObject", "Sketch007")
sketch8.AttachmentSupport = (doc.getObject("XZ_Plane"), [""])
sketch8.MapMode = "FlatFace"
sketch8.AttachmentOffset = App.Placement(V(0, 0, -6.35), App.Rotation())
sketch8.addGeometry([
    Part.Circle(V(0, 0, 0), V(0, 0, 1), 7.5),
    Part.Circle(V(0, 0, 0), V(0, 0, 1), 4.3),
], False)
sketch8.addConstraint([
    Sketcher.Constraint("Coincident", 0, 3, -1, 1),
    Sketcher.Constraint("Coincident", 1, 3, -1, 1),
    Sketcher.Constraint("Diameter", 0, Q("15 mm")),
    Sketcher.Constraint("Diameter", 1, Q("8.5 mm")),
])
sketch8.setExpression("Constraints[2]", "Params.sketch8_diameter")
sketch8.setExpression("Constraints[3]", "Params.sketch8_diameter2")
pad4 = body.newObject("PartDesign::Pad", "Pad003")
pad4.Profile = sketch8
pad4.setExpression("Length", "Params.pad4_length")
pad4.Reversed = True

doc.recompute()
